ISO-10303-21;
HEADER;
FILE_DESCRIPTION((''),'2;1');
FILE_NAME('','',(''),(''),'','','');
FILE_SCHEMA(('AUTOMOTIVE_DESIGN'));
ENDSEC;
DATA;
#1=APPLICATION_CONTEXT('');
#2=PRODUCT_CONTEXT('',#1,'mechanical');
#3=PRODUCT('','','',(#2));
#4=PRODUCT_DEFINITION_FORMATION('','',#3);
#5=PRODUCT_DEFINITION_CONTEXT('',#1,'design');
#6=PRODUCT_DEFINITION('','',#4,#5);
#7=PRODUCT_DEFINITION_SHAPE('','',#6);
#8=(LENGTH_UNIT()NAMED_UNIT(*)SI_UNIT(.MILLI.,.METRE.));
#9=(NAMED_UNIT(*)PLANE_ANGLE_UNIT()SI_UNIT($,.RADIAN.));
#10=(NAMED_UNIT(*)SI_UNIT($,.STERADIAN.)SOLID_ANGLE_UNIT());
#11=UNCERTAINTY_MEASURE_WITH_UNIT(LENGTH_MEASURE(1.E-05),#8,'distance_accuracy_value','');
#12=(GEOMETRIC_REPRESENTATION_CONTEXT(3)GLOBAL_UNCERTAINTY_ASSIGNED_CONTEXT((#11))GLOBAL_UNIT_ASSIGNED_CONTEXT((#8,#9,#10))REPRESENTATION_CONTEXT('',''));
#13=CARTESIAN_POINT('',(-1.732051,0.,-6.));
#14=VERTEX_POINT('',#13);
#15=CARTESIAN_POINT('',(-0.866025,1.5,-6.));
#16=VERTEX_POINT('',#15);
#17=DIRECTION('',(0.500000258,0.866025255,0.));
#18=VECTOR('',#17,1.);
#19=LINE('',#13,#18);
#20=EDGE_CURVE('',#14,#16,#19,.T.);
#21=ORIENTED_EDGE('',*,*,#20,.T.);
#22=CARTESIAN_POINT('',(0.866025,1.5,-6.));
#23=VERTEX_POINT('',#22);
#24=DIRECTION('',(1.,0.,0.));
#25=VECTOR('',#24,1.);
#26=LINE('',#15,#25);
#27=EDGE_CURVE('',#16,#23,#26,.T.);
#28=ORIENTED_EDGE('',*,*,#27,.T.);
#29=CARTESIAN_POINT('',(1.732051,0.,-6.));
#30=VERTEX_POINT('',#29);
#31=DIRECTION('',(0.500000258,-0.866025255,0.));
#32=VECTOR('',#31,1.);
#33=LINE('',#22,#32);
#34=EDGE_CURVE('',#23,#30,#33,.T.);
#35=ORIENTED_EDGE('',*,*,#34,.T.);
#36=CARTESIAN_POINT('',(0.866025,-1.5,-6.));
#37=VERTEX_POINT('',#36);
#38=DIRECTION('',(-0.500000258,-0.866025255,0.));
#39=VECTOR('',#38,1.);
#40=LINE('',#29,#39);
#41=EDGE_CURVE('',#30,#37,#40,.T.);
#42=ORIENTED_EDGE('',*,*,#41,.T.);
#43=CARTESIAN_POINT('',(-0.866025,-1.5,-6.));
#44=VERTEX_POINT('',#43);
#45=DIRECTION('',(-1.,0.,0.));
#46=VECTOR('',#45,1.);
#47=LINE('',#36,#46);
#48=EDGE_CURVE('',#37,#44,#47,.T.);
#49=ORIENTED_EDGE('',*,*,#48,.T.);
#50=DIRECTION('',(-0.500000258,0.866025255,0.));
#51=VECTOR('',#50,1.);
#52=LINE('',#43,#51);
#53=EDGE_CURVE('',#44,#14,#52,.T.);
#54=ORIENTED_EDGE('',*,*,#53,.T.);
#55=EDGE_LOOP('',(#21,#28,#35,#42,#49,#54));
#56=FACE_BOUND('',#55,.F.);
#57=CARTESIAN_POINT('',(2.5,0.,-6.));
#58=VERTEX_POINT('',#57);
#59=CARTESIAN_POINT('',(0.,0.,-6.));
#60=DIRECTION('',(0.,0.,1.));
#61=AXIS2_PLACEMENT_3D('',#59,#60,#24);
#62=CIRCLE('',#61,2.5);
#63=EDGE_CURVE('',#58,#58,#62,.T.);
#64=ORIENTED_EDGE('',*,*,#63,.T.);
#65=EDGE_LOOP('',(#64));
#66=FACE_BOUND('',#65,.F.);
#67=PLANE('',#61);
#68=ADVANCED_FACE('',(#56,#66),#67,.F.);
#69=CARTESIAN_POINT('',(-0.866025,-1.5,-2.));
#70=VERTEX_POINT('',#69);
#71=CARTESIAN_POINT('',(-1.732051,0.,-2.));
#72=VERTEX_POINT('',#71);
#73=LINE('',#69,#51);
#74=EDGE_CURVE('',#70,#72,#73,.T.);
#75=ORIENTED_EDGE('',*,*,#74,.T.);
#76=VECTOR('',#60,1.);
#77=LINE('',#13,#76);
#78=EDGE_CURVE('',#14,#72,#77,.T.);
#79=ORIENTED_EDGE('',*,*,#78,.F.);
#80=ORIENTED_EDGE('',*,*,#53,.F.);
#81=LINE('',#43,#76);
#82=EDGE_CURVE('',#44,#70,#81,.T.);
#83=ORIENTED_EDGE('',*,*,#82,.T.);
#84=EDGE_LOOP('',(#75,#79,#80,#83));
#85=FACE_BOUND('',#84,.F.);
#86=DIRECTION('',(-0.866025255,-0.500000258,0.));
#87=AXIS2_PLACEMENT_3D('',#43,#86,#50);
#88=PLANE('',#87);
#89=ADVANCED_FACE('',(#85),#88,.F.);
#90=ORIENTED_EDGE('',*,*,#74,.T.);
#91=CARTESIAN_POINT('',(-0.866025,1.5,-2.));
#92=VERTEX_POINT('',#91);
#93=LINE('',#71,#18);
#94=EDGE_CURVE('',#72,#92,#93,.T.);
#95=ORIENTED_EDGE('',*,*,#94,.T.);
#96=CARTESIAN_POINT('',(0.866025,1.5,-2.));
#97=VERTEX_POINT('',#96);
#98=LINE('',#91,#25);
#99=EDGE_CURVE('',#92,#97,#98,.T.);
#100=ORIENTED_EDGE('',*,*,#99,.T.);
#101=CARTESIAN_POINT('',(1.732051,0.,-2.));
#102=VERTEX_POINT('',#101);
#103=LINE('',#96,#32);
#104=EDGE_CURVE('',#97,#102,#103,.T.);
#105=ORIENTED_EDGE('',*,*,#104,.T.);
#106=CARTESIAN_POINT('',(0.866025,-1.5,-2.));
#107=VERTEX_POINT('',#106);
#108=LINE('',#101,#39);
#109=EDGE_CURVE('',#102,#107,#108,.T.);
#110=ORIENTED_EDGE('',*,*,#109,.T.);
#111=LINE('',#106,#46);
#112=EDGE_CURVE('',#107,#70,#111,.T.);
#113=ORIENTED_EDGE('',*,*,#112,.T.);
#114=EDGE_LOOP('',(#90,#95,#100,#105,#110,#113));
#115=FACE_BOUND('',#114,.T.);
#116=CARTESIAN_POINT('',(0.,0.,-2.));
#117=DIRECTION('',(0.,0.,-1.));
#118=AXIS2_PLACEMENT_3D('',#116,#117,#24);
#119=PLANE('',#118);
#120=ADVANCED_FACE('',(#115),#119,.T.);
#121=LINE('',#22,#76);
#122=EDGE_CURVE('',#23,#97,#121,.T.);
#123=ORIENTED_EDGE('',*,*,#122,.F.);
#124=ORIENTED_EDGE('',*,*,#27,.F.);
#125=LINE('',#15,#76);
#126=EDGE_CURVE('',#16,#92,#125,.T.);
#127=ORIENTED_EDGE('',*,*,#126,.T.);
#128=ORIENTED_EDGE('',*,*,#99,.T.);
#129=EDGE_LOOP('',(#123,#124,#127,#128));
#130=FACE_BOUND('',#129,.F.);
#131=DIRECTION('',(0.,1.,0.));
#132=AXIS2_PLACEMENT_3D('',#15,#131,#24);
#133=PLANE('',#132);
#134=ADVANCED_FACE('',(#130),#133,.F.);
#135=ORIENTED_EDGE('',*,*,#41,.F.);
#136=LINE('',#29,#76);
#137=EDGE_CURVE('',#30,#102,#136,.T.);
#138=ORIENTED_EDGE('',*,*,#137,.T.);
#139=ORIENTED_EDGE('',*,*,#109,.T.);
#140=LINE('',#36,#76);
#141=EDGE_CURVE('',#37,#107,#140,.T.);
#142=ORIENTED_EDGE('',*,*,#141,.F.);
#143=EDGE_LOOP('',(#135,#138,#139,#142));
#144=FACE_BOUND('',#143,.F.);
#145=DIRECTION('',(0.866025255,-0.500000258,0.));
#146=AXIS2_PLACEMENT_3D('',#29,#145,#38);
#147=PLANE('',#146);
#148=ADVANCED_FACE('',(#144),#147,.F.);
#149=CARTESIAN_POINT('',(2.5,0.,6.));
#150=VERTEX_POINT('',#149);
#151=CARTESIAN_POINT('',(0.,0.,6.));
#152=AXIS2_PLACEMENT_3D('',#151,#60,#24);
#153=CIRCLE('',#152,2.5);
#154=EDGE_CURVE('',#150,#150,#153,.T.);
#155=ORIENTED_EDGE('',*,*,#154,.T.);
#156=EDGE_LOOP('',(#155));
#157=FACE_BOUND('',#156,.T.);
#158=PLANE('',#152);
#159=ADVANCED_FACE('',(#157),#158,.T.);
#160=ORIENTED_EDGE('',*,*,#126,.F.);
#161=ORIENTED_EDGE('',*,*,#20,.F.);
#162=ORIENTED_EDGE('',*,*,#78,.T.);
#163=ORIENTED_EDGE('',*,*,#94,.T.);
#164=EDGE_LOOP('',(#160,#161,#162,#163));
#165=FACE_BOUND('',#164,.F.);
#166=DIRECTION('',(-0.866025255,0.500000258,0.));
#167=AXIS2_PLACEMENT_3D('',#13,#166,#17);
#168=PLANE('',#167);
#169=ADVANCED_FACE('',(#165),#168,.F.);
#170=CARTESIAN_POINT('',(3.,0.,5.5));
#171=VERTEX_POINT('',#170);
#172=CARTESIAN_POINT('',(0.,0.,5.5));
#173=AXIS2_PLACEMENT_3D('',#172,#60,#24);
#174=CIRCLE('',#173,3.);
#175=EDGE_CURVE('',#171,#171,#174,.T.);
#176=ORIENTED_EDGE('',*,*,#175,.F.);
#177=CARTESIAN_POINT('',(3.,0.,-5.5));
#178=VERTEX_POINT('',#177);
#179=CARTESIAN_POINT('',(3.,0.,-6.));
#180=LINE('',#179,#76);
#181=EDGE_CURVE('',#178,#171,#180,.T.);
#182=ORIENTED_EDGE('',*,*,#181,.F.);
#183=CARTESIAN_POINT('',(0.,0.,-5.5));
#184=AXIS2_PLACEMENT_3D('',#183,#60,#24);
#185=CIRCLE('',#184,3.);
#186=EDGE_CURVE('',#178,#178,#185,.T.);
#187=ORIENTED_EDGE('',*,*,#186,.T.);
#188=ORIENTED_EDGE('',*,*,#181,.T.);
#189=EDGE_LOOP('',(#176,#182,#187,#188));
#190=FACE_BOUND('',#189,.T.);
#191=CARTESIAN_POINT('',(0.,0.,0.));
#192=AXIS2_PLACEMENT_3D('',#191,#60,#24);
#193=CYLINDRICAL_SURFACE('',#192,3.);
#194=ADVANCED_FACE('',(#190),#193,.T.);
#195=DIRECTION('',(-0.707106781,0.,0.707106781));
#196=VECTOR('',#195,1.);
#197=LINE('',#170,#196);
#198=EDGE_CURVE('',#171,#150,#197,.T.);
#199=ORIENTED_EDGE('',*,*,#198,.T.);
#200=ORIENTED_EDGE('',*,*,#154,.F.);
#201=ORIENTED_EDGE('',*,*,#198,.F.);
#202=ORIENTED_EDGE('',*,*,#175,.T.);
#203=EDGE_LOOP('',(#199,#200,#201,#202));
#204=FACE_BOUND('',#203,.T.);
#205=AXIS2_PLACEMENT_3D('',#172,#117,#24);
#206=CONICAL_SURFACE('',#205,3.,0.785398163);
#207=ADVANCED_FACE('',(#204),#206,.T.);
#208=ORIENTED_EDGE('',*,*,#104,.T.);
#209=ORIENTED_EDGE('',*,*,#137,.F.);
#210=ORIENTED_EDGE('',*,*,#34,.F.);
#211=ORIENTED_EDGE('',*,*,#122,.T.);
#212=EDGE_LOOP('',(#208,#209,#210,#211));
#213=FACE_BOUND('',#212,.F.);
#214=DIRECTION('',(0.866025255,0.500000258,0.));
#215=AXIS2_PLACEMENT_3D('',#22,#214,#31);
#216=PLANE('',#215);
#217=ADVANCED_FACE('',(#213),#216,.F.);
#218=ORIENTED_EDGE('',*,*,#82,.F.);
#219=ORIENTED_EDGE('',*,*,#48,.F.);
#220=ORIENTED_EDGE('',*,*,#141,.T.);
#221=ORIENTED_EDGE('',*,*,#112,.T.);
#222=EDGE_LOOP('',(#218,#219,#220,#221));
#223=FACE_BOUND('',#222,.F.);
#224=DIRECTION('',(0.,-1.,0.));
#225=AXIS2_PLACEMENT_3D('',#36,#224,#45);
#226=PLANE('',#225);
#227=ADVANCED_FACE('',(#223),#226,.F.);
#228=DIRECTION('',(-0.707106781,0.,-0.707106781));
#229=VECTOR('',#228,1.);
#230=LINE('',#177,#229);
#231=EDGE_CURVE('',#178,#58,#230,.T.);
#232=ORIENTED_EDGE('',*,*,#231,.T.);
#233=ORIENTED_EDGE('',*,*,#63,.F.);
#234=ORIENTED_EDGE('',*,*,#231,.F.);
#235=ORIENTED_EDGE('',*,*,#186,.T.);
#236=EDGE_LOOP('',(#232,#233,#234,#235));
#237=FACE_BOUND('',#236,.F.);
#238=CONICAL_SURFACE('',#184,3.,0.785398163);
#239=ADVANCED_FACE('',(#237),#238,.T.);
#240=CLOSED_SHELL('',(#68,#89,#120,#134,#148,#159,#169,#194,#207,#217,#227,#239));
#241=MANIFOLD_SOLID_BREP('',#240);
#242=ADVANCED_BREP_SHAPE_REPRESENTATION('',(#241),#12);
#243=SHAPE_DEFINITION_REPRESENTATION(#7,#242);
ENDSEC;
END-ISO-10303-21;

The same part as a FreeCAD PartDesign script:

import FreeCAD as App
import Part
import Sketcher
from FreeCAD import Vector
Q = App.Units.Quantity


def edges_at(feature, points):
    """Names of the edges that pass closest to the given points."""
    edges = feature.Shape.Edges
    near = lambda p: min(range(len(edges)), key=lambda i: edges[i].distToShape(Part.Vertex(*p))[0])
    return sorted({f"Edge{near(p) + 1}" for p in points})

doc = App.newDocument("Part")
params = doc.addObject("Spreadsheet::Sheet", "Params")
for row, (alias, value) in enumerate([
    ("sketch1_diameter", "6 mm"),
    ("pad1_length", "12 mm"),
    ("chamfer_size", "0.5 mm"),
    ("pocket1_length", "4 mm"),
], start=1):
    params.set(f"A{row}", alias)
    params.set(f"B{row}", "=" + value)
    params.setAlias(f"B{row}", alias)

body = doc.addObject("PartDesign::Body", "Body")

# Sketch on XY plane
sketch1 = body.newObject("Sketcher::SketchObject", "Sketch")
sketch1.AttachmentSupport = (doc.getObject("XY_Plane"), [""])
sketch1.MapMode = "FlatFace"
sketch1.addGeometry(Part.Circle(Vector(0, 0, 0), Vector(0, 0, 1), 3), False)
sketch1.addConstraint(Sketcher.Constraint("Coincident", 0, 3, -1, 1))
sketch1.addConstraint(Sketcher.Constraint("Diameter", 0, 6.0))
sketch1.setExpression("Constraints[1]", "Params.sketch1_diameter")
pad1 = body.newObject("PartDesign::Pad", "Pad")
pad1.Profile = sketch1
pad1.setExpression("Length", "Params.pad1_length")
pad1.Midplane = True
doc.recompute()

chamfer = body.newObject("PartDesign::Chamfer", "Chamfer")
chamfer.Base = (pad1, edges_at(pad1, [(-3, 0, 6), (-3, 0, -6)]))
chamfer.setExpression("Size", "Params.chamfer_size")

# Sketch on XY plane
sketch2 = body.newObject("Sketcher::SketchObject", "Sketch001")
sketch2.AttachmentSupport = (doc.getObject("XY_Plane"), [""])
sketch2.MapMode = "FlatFace"
sketch2.AttachmentOffset = App.Placement(Vector(0, 0, -6), App.Rotation())
sketch2.addGeometry(Part.LineSegment(Vector(0.9, -1.5, 0), Vector(-0.9, -1.5, 0)), False)
sketch2.addGeometry(Part.LineSegment(Vector(-0.9, -1.5, 0), Vector(-1.7, 0, 0)), False)
sketch2.addGeometry(Part.LineSegment(Vector(-1.7, 0, 0), Vector(-0.9, 1.5, 0)), False)
sketch2.addGeometry(Part.LineSegment(Vector(-0.9, 1.5, 0), Vector(0.9, 1.5, 0)), False)
sketch2.addGeometry(Part.LineSegment(Vector(0.9, 1.5, 0), Vector(1.7, 0, 0)), False)
sketch2.addGeometry(Part.LineSegment(Vector(1.7, 0, 0), Vector(0.9, -1.5, 0)), False)
sketch2.addConstraint(Sketcher.Constraint("Coincident", 0, 2, 1, 1))
sketch2.addConstraint(Sketcher.Constraint("Coincident", 1, 2, 2, 1))
sketch2.addConstraint(Sketcher.Constraint("Coincident", 2, 2, 3, 1))
sketch2.addConstraint(Sketcher.Constraint("Coincident", 3, 2, 4, 1))
sketch2.addConstraint(Sketcher.Constraint("Coincident", 4, 2, 5, 1))
sketch2.addConstraint(Sketcher.Constraint("Coincident", 5, 2, 0, 1))
sketch2.addConstraint(Sketcher.Constraint("Horizontal", 0))
sketch2.addConstraint(Sketcher.Constraint("Horizontal", 3))
sketch2.addConstraint(Sketcher.Constraint("Symmetric", 0, 2, 3, 2, -1, 1))
sketch2.addConstraint(Sketcher.Constraint("Symmetric", 1, 2, 4, 2, -1, 1))
sketch2.addConstraint(Sketcher.Constraint("PointOnObject", 1, 2, -1))
sketch2.addConstraint(Sketcher.Constraint("Parallel", 2, 5))
sketch2.addConstraint(Sketcher.Constraint("Vertical", 0, 2, 2, 2))
sketch2.addConstraint(Sketcher.Constraint("Angle", 1, Q("120.000017 deg")))
sketch2.addConstraint(Sketcher.Constraint("DistanceY", 0, 2, 2, 2, 3.0))
sketch2.addConstraint(Sketcher.Constraint("DistanceX", 0, 2, 0, 1, 1.73205))
pocket1 = body.newObject("PartDesign::Pocket", "Pocket")
pocket1.Profile = sketch2
pocket1.setExpression("Length", "Params.pocket1_length")
pocket1.Reversed = True

doc.recompute()
